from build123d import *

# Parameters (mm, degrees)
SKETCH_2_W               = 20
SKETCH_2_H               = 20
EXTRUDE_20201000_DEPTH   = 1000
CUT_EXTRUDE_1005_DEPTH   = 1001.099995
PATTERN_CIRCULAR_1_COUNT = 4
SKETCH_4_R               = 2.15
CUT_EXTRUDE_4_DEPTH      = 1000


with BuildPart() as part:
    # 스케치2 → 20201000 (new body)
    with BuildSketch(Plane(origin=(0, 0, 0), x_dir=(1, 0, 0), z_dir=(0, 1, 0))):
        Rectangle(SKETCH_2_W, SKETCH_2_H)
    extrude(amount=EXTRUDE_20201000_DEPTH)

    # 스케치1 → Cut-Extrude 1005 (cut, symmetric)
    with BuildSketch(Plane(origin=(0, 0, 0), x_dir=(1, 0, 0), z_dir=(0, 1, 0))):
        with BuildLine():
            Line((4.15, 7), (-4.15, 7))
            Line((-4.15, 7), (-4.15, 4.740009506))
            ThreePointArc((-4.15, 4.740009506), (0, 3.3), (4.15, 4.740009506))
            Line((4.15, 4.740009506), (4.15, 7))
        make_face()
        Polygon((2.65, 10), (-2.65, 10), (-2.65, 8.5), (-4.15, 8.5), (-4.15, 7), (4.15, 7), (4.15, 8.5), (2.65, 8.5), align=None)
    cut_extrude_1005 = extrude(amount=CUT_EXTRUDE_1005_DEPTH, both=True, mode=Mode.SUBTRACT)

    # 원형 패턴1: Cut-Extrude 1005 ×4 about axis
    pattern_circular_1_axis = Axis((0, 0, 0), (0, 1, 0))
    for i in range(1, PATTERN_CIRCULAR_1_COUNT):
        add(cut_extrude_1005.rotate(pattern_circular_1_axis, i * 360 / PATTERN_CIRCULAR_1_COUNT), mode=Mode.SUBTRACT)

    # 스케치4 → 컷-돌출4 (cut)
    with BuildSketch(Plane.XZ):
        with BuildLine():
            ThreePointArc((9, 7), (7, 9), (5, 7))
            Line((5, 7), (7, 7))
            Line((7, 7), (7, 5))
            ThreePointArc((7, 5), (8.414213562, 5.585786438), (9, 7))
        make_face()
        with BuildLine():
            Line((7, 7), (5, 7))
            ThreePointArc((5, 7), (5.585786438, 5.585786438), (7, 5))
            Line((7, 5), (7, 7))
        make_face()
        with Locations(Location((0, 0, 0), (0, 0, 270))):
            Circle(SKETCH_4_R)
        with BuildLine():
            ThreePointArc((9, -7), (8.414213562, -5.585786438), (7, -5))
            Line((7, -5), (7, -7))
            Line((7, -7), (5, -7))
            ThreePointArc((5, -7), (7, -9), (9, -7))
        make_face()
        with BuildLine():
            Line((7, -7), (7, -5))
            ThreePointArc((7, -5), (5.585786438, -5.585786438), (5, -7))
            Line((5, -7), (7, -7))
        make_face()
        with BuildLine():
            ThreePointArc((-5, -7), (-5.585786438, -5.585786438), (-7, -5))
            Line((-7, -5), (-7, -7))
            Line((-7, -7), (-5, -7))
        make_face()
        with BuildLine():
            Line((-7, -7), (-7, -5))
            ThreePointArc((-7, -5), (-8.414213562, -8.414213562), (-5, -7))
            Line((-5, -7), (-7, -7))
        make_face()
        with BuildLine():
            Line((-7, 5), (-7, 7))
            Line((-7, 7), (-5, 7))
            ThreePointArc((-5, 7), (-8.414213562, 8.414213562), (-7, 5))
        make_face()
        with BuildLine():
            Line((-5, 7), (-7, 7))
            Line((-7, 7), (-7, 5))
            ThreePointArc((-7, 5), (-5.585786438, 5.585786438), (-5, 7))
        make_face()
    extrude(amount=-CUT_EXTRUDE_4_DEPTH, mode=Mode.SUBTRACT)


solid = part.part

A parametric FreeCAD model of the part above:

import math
import FreeCAD as App
import Part
import Sketcher

V = App.Vector
Q = App.Units.Quantity


def add_polygon(sketch, points):
    """Adds a closed chain of lines whose ends are joined by coincident constraints."""
    first, n = sketch.GeometryCount, len(points)
    for a, b in zip(points, points[1:] + points[:1]):
        sketch.addGeometry(Part.LineSegment(App.Vector(*a, 0), App.Vector(*b, 0)), False)
    for i in range(n):
        sketch.addConstraint(Sketcher.Constraint("Coincident", first + i, 2, first + (i + 1) % n, 1))

doc = App.newDocument("Part")
params = doc.addObject("Spreadsheet::Sheet", "Params")
for row, (alias, value) in enumerate([
    ("sketch1_width", "20 mm"),
    ("pad1_length", "1000 mm"),
    ("sketch2_radius", "6.7 mm"),
    ("sketch2_width", "1.5 mm"),
    ("sketch2_width2", "5.3 mm"),
    ("pocket1_length", "2002.19999 mm"),
    ("sketch3_radius", "2 mm"),
    ("sketch3_diameter", "4.3 mm"),
    ("pocket2_length", "1000 mm"),
], start=1):
    params.set(f"A{row}", alias)
    params.set(f"B{row}", "=" + value)
    params.setAlias(f"B{row}", alias)

body = doc.addObject("PartDesign::Body", "Body")

# Sketch on XZ plane
sketch1 = doc.addObject("Sketcher::SketchObject", "Sketch")
body.addObject(sketch1)
sketch1.AttachmentSupport = (doc.XZ_Plane, [""])
sketch1.MapMode = "FlatFace"
add_polygon(sketch1, [(-10, -10), (-10, 10), (10, 10), (10, -10)])  # lines 0-3
sketch1.addConstraint([
    Sketcher.Constraint("Vertical", 0),
    Sketcher.Constraint("Horizontal", 1),
    Sketcher.Constraint("Vertical", 2),
    Sketcher.Constraint("Horizontal", 3),
    Sketcher.Constraint("Symmetric", 0, 2, 2, 2, -1, 1),
    Sketcher.Constraint("Equal", 3, 0),
    Sketcher.Constraint("DistanceX", 1, 1, 1, 2, Q("20 mm")),
])
sketch1.setExpression("Constraints[10]", "Params.sketch1_width")
pad1 = doc.addObject("PartDesign::Pad", "Pad")
body.addObject(pad1)
pad1.Profile = sketch1
pad1.setExpression("Length", "Params.pad1_length")
pad1.Reversed = True

# Sketch on XZ plane
sketch2 = doc.addObject("Sketcher::SketchObject", "Sketch001")
body.addObject(sketch2)
sketch2.AttachmentSupport = (doc.XZ_Plane, [""])
sketch2.MapMode = "FlatFace"
sketch2.addGeometry([
    Part.ArcOfCircle(Part.Circle(V(0, -10, 0), V(0, 0, 1), 6.7), math.radians(51.72745), math.radians(128.27255)),  # 0
    Part.LineSegment(V(4.15, -4.74001, 0), V(4.15, -8.5, 0)),  # 1
    Part.LineSegment(V(4.15, -8.5, 0), V(2.65, -8.5, 0)),  # 2
    Part.LineSegment(V(2.65, -8.5, 0), V(2.65, -10, 0)),  # 3
    Part.LineSegment(V(2.65, -10, 0), V(-2.65, -10, 0)),  # 4
    Part.LineSegment(V(-2.65, -10, 0), V(-2.65, -8.5, 0)),  # 5
    Part.LineSegment(V(-2.65, -8.5, 0), V(-4.15, -8.5, 0)),  # 6
    Part.LineSegment(V(-4.15, -8.5, 0), V(-4.15, -4.74001, 0)),  # 7
], False)
sketch2.addConstraint([
    Sketcher.Constraint("Coincident", 0, 1, 1, 1),
    Sketcher.Constraint("Coincident", 1, 2, 2, 1),
    Sketcher.Constraint("Coincident", 2, 2, 3, 1),
    Sketcher.Constraint("Coincident", 3, 2, 4, 1),
    Sketcher.Constraint("Coincident", 4, 2, 5, 1),
    Sketcher.Constraint("Coincident", 5, 2, 6, 1),
    Sketcher.Constraint("Coincident", 6, 2, 7, 1),
    Sketcher.Constraint("Coincident", 7, 2, 0, 2),
    Sketcher.Constraint("Vertical", 1),
    Sketcher.Constraint("Horizontal", 2),
    Sketcher.Constraint("Vertical", 3),
    Sketcher.Constraint("Horizontal", 4),
    Sketcher.Constraint("Vertical", 5),
    Sketcher.Constraint("Horizontal", 6),
    Sketcher.Constraint("Vertical", 7),
    Sketcher.Constraint("Symmetric", 2, 2, 5, 2, -2),
    Sketcher.Constraint("Symmetric", 0, 1, 7, 2, -2),
    Sketcher.Constraint("Horizontal", 0, 3, 3, 2),
    Sketcher.Constraint("Equal", 6, 3),
    Sketcher.Constraint("Radius", 0, Q("6.7 mm")),
    Sketcher.Constraint("DistanceX", 2, 2, 2, 1, Q("1.5 mm")),
    Sketcher.Constraint("DistanceX", 4, 2, 4, 1, Q("5.3 mm")),
    Sketcher.Constraint("DistanceY", 0, 3, -1, 1, Q("10 mm")),
])
sketch2.setExpression("Constraints[19]", "Params.sketch2_radius")
sketch2.setExpression("Constraints[20]", "Params.sketch2_width")
sketch2.setExpression("Constraints[21]", "Params.sketch2_width2")
pocket1 = doc.addObject("PartDesign::Pocket", "Pocket")
body.addObject(pocket1)
pocket1.Profile = sketch2
pocket1.setExpression("Length", "Params.pocket1_length")
pocket1.Midplane = True
doc.recompute()

polarpattern = doc.addObject("PartDesign::PolarPattern", "PolarPattern")
body.addObject(polarpattern)
polarpattern.Originals = [pocket1]
polarpattern.Axis = (doc.Y_Axis, [""])
polarpattern.Angle = 360
polarpattern.Occurrences = 4
body.Tip = polarpattern

# Sketch on XZ plane
sketch3 = doc.addObject("Sketcher::SketchObject", "Sketch002")
body.addObject(sketch3)
sketch3.AttachmentSupport = (doc.XZ_Plane, [""])
sketch3.MapMode = "FlatFace"
sketch3.addGeometry([
    Part.ArcOfCircle(Part.Circle(V(7, 7, 0), V(0, 0, 1), 2), math.radians(0), math.radians(180)),  # 0
    Part.ArcOfCircle(Part.Circle(V(7, 7, 0), V(0, 0, 1), 2), math.radians(-180), math.radians(-90)),  # 1
    Part.ArcOfCircle(Part.Circle(V(7, 7, 0), V(0, 0, 1), 2), math.radians(-90), math.radians(0)),  # 2
    Part.Circle(V(0, 0, 0), V(0, 0, 1), 2.15),  # 3
    Part.ArcOfCircle(Part.Circle(V(7, -7, 0), V(0, 0, 1), 2), math.radians(0), math.radians(90)),  # 4
    Part.ArcOfCircle(Part.Circle(V(7, -7, 0), V(0, 0, 1), 2), math.radians(90), math.radians(180)),  # 5
    Part.ArcOfCircle(Part.Circle(V(7, -7, 0), V(0, 0, 1), 2), math.radians(180), math.radians(360)),  # 6
    Part.ArcOfCircle(Part.Circle(V(-7, -7, 0), V(0, 0, 1), 2), math.radians(0), math.radians(90)),  # 7
    Part.ArcOfCircle(Part.Circle(V(-7, -7, 0), V(0, 0, 1), 2), math.radians(90), math.radians(360)),  # 8
    Part.ArcOfCircle(Part.Circle(V(-7, 7, 0), V(0, 0, 1), 2), math.radians(0), math.radians(270)),  # 9
    Part.ArcOfCircle(Part.Circle(V(-7, 7, 0), V(0, 0, 1), 2), math.radians(-90), math.radians(0)),  # 10
], False)
sketch3.addConstraint([
    Sketcher.Constraint("Tangent", 0, 2, 1, 1),
    Sketcher.Constraint("Tangent", 1, 2, 2, 1),
    Sketcher.Constraint("Tangent", 2, 2, 0, 1),
    Sketcher.Constraint("Tangent", 4, 2, 5, 1),
    Sketcher.Constraint("Tangent", 5, 2, 6, 1),
    Sketcher.Constraint("Tangent", 6, 2, 4, 1),
    Sketcher.Constraint("Tangent", 7, 1, 8, 2),
    Sketcher.Constraint("Coincident", 8, 1, 7, 2),
    Sketcher.Constraint("Tangent", 9, 1, 10, 2),
    Sketcher.Constraint("Coincident", 10, 1, 9, 2),
    Sketcher.Constraint("Coincident", 3, 3, -1, 1),
    Sketcher.Constraint("Equal", 2, 4),
    Sketcher.Constraint("Equal", 6, 7),
    Sketcher.Constraint("Equal", 8, 9),
    Sketcher.Constraint("Symmetric", 0, 3, 7, 3, -1, 1),
    Sketcher.Constraint("Symmetric", 4, 3, 9, 3, -1, 1),
    Sketcher.Constraint("Symmetric", 4, 3, 7, 3, -2),
    Sketcher.Constraint("Horizontal", 10, 3, 0, 2),
    Sketcher.Constraint("Horizontal", 0, 2, 2, 2),
    Sketcher.Constraint("Horizontal", 8, 3, 5, 2),
    Sketcher.Constraint("Horizontal", 5, 2, 6, 2),
    Sketcher.Constraint("Horizontal", 6, 2, 7, 1),
    Sketcher.Constraint("Horizontal", 2, 2, 9, 1),
    Sketcher.Constraint("Vertical", 6, 3, 1, 2),
    Sketcher.Constraint("Vertical", 1, 2, 4, 2),
    Sketcher.Constraint("Vertical", 10, 3, 8, 1),
    Sketcher.Constraint("Vertical", 8, 1, 10, 1),
    Sketcher.Constraint("Radius", 0, Q("2 mm")),
    Sketcher.Constraint("Diameter", 3, Q("4.3 mm")),
    Sketcher.Constraint("DistanceX", -1, 1, 0, 3, Q("7 mm")),
    Sketcher.Constraint("DistanceY", -1, 1, 0, 3, Q("7 mm")),
])
sketch3.setExpression("Constraints[27]", "Params.sketch3_radius")
sketch3.setExpression("Constraints[28]", "Params.sketch3_diameter")
pocket2 = doc.addObject("PartDesign::Pocket", "Pocket001")
body.addObject(pocket2)
pocket2.Profile = sketch3
pocket2.setExpression("Length", "Params.pocket2_length")

doc.recompute()
